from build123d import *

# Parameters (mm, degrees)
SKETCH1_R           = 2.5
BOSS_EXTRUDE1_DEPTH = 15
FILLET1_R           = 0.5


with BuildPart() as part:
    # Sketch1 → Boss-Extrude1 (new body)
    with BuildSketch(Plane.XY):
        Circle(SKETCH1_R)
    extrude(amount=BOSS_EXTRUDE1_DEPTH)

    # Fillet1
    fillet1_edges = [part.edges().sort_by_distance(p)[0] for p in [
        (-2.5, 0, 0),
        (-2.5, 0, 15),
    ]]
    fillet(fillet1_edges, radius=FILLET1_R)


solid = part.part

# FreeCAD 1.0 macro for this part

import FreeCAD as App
import Part
import Sketcher
Q = App.Units.Quantity


def edges_at(feature, points):
    """Names of the edges that pass closest to the given points."""
    edges = feature.Shape.Edges
    near = lambda p: min(range(len(edges)), key=lambda i: edges[i].distToShape(Part.Vertex(*p))[0])
    return sorted({f"Edge{near(p) + 1}" for p in points})

doc = App.newDocument("Part")
params = doc.addObject("Spreadsheet::Sheet", "Params")
for row, (alias, value) in enumerate([
    ("sketch1_diameter", "5 mm"),
    ("pad1_length", "15 mm"),
    ("fillet_radius", "0.5 mm"),
], start=1):
    params.set(f"A{row}", alias)
    params.set(f"B{row}", "=" + value)
    params.setAlias(f"B{row}", alias)

body = doc.addObject("PartDesign::Body", "Body")

sketch1 = body.newObject("Sketcher::SketchObject", "Sketch")
sketch1.AttachmentSupport = (doc.getObject("XY_Plane"), [""])
sketch1.MapMode = "FlatFace"
sketch1.addGeometry(Part.Circle(App.Vector(0, 0, 0), App.Vector(0, 0, 1), 2.5), False)
sketch1.addConstraint(Sketcher.Constraint("Coincident", 0, 3, -1, 1))
sketch1.addConstraint(Sketcher.Constraint("Diameter", 0, Q("5 mm")))
sketch1.setExpression("Constraints[1]", "Params.sketch1_diameter")
pad1 = body.newObject("PartDesign::Pad", "Pad")
pad1.Profile = sketch1
pad1.setExpression("Length", "Params.pad1_length")
doc.recompute()

fillet = body.newObject("PartDesign::Fillet", "Fillet")
fillet.Base = (pad1, edges_at(pad1, [(-2.5, 0, 0), (-2.5, 0, 15)]))
fillet.setExpression("Radius", "Params.fillet_radius")

doc.recompute()
